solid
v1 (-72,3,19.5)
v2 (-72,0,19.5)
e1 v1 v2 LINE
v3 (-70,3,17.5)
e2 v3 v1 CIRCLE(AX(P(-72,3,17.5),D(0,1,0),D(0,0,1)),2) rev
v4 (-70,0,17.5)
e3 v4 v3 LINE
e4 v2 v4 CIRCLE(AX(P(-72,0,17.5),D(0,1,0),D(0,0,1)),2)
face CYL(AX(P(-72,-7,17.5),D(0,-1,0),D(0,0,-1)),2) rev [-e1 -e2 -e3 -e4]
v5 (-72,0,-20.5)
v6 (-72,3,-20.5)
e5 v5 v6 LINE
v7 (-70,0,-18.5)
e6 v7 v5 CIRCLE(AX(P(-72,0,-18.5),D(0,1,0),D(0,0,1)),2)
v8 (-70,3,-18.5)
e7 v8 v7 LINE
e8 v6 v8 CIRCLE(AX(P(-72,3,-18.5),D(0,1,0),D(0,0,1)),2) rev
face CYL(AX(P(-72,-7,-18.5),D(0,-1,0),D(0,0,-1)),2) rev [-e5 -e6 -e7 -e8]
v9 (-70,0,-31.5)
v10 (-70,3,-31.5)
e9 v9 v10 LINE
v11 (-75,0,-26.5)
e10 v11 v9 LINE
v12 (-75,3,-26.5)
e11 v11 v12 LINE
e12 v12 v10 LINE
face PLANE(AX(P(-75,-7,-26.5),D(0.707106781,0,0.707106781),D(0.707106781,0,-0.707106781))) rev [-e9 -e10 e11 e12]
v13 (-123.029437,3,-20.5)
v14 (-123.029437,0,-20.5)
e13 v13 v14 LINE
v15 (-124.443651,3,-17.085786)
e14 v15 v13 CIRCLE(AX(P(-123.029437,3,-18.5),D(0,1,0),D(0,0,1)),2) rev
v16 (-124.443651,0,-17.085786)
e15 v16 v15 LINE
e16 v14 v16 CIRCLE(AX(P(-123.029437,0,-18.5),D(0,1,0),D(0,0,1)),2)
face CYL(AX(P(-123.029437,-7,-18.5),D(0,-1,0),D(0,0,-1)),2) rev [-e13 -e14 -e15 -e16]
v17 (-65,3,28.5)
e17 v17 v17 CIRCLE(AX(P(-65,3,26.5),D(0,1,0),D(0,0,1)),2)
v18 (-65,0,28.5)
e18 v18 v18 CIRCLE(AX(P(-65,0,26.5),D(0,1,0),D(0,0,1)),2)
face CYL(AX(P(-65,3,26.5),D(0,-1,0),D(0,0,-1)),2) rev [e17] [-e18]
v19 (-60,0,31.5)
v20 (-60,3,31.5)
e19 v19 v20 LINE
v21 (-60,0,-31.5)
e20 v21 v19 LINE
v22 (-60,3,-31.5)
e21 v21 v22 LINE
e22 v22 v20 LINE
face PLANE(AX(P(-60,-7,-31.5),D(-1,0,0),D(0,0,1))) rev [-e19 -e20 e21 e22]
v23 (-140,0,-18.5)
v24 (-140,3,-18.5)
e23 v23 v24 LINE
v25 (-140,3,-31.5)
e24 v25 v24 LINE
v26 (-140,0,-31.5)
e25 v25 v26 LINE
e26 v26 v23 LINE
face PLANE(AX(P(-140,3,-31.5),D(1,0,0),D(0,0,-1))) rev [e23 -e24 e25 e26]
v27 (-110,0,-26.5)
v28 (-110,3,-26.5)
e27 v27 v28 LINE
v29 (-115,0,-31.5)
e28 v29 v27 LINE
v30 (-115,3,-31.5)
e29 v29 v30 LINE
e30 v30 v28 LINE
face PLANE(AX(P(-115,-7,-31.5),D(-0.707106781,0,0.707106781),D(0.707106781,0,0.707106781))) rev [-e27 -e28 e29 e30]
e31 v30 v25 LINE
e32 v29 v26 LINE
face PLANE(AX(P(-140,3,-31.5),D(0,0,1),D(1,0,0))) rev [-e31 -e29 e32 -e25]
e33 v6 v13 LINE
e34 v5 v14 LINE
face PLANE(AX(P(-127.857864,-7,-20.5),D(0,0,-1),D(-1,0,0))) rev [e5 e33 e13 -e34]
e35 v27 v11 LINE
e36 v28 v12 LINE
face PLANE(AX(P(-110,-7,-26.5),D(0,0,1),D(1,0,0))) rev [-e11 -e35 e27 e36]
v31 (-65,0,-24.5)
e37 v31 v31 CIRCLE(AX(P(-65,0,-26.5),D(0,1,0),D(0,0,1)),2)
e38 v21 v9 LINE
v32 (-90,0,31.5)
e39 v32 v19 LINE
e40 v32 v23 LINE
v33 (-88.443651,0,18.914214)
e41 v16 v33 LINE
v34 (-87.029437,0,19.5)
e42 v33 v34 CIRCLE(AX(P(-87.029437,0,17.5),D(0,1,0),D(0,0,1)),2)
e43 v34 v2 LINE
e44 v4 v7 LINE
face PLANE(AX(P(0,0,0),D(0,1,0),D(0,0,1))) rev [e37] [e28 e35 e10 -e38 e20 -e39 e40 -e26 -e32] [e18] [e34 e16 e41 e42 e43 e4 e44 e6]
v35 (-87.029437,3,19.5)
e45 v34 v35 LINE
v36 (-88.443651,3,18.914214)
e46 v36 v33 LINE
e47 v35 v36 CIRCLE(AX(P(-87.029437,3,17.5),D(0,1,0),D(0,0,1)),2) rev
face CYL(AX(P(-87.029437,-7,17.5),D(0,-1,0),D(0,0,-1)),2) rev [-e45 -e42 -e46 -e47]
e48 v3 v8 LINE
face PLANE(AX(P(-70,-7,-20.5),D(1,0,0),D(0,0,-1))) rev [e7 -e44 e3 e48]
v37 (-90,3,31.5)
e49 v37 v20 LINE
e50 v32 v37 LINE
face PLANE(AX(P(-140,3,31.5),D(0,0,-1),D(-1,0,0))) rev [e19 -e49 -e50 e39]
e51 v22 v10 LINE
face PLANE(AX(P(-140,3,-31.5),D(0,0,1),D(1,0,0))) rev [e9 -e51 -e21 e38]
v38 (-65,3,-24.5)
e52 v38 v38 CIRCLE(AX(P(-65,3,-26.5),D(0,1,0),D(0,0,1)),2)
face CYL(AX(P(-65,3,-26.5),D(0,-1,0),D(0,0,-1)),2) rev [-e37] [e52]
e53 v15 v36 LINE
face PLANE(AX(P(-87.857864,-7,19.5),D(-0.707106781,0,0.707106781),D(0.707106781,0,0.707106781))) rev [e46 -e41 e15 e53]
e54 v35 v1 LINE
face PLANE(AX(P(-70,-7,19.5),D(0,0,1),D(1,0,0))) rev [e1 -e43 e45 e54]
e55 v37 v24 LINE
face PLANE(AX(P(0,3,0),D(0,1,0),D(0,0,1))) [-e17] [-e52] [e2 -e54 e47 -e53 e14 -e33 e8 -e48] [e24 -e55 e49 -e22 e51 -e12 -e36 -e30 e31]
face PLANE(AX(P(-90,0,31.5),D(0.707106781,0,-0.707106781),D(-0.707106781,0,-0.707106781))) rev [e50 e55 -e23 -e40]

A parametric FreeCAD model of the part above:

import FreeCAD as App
import Part
import Sketcher
from FreeCAD import Vector
Q = App.Units.Quantity


def edges_at(feature, points):
    """Names of the edges that pass closest to the given points."""
    edges = feature.Shape.Edges
    near = lambda p: min(range(len(edges)), key=lambda i: edges[i].distToShape(Part.Vertex(*p))[0])
    return sorted({f"Edge{near(p) + 1}" for p in points})


def add_polygon(sketch, points):
    """Adds a closed chain of lines whose ends are joined by coincident constraints."""
    first, n = sketch.GeometryCount, len(points)
    for a, b in zip(points, points[1:] + points[:1]):
        sketch.addGeometry(Part.LineSegment(App.Vector(*a, 0), App.Vector(*b, 0)), False)
    for i in range(n):
        sketch.addConstraint(Sketcher.Constraint("Coincident", first + i, 2, first + (i + 1) % n, 1))

doc = App.newDocument("Part")
body = doc.addObject("PartDesign::Body", "Body")

# Sketch on XZ plane
sketch1 = doc.addObject("Sketcher::SketchObject", "Sketch")
body.addObject(sketch1)
sketch1.AttachmentSupport = (doc.XZ_Plane, [""])
sketch1.MapMode = "FlatFace"
add_polygon(sketch1, [(-140, -31.5), (-140, 31.5), (140, 31.5), (140, -31.5)])  # lines 0-3
sketch1.addGeometry(Part.Circle(Vector(-65, 26.5, 0), Vector(0, 0, 1), 2), False)  # 4
sketch1.addGeometry(Part.Circle(Vector(65, 26.5, 0), Vector(0, 0, 1), 2), False)  # 5
sketch1.addGeometry(Part.Circle(Vector(-65, -26.5, 0), Vector(0, 0, 1), 2), False)  # 6
sketch1.addGeometry(Part.Circle(Vector(65, -26.5, 0), Vector(0, 0, 1), 2), False)  # 7
sketch1.addConstraint([
    Sketcher.Constraint("Vertical", 0),
    Sketcher.Constraint("Horizontal", 1),
    Sketcher.Constraint("Vertical", 2),
    Sketcher.Constraint("Horizontal", 3),
    Sketcher.Constraint("Equal", 4, 5),
    Sketcher.Constraint("Equal", 5, 6),
    Sketcher.Constraint("Equal", 6, 7),
    Sketcher.Constraint("Symmetric", 5, 3, 6, 3, -1, 1),
    Sketcher.Constraint("Symmetric", 4, 3, 7, 3, -1, 1),
    Sketcher.Constraint("Symmetric", 0, 2, 2, 2, -1, 1),
    Sketcher.Constraint("Symmetric", 4, 3, 5, 3, -2),
    Sketcher.Constraint("Diameter", 4, 4.0),
    Sketcher.Constraint("DistanceX", 1, 1, 1, 2, 280.0),
    Sketcher.Constraint("DistanceY", 0, 1, 0, 2, 63.0),
    Sketcher.Constraint("DistanceX", 4, 3, -1, 1, 65.0),
    Sketcher.Constraint("DistanceY", 6, 3, 4, 3, 53.0),
])
pad1 = doc.addObject("PartDesign::Pad", "Pad")
body.addObject(pad1)
pad1.Profile = sketch1
pad1.Length = 3
pad1.Reversed = True

# Sketch on XZ plane
sketch2 = doc.addObject("Sketcher::SketchObject", "Sketch001")
body.addObject(sketch2)
sketch2.AttachmentSupport = (doc.XZ_Plane, [""])
sketch2.MapMode = "FlatFace"
sketch2.AttachmentOffset = App.Placement(Vector(0, 0, -3), App.Rotation())
add_polygon(sketch2, [(-140, -18), (-140, 32), (-90, 32)])  # lines 0-2
add_polygon(sketch2, [(140, -18), (90, 32), (140, 32)])  # lines 3-5
sketch2.addConstraint([
    Sketcher.Constraint("Vertical", 0),
    Sketcher.Constraint("Horizontal", 1),
    Sketcher.Constraint("Horizontal", 4),
    Sketcher.Constraint("Vertical", 5),
    Sketcher.Constraint("Symmetric", 1, 2, 3, 2, -2),
    Sketcher.Constraint("Symmetric", 2, 2, 5, 2, -2),
    Sketcher.Constraint("Perpendicular", 2, 3),
    Sketcher.Constraint("DistanceX", 1, 1, 1, 2, 50.0),
    Sketcher.Constraint("DistanceX", 0, 2, -1, 1, 140.0),
    Sketcher.Constraint("DistanceY", -1, 1, 0, 2, 31.5),
])
pocket1 = doc.addObject("PartDesign::Pocket", "Pocket")
body.addObject(pocket1)
pocket1.Profile = sketch2
pocket1.Length = 3
pocket1.Reversed = True

# Sketch on XZ plane
sketch3 = doc.addObject("Sketcher::SketchObject", "Sketch002")
body.addObject(sketch3)
sketch3.AttachmentSupport = (doc.XZ_Plane, [""])
sketch3.MapMode = "FlatFace"
sketch3.AttachmentOffset = App.Placement(Vector(0, 0, -3), App.Rotation())
add_polygon(sketch3, [(-60, -32), (-60, 32), (140, 32), (140, -32)])  # lines 0-3
sketch3.addConstraint([
    Sketcher.Constraint("Vertical", 0),
    Sketcher.Constraint("Horizontal", 1),
    Sketcher.Constraint("Vertical", 2),
    Sketcher.Constraint("Horizontal", 3),
    Sketcher.Constraint("DistanceX", 1, 1, 1, 2, 200.0),
    Sketcher.Constraint("DistanceY", 0, 1, 0, 2, 63.0),
    Sketcher.Constraint("DistanceX", 0, 2, -1, 1, 60.0),
    Sketcher.Constraint("DistanceY", -1, 1, 0, 2, 31.5),
])
pocket2 = doc.addObject("PartDesign::Pocket", "Pocket001")
body.addObject(pocket2)
pocket2.Profile = sketch3
pocket2.Length = 10
pocket2.Reversed = True

# Sketch on XZ plane
sketch4 = doc.addObject("Sketcher::SketchObject", "Sketch003")
body.addObject(sketch4)
sketch4.AttachmentSupport = (doc.XZ_Plane, [""])
sketch4.MapMode = "FlatFace"
sketch4.AttachmentOffset = App.Placement(Vector(0, 0, -3), App.Rotation())
add_polygon(sketch4, [(-115, -32), (-110, -26), (-75, -26), (-70, -32)])  # lines 0-3
sketch4.addConstraint([
    Sketcher.Constraint("Horizontal", 1),
    Sketcher.Constraint("Horizontal", 3),
    Sketcher.Constraint("Perpendicular", 0, 2),
    Sketcher.Constraint("Equal", 0, 2),
    Sketcher.Constraint("DistanceX", 1, 1, 1, 2, 35.0),
    Sketcher.Constraint("DistanceX", 3, 2, 3, 1, 45.0),
    Sketcher.Constraint("DistanceX", 0, 2, -1, 1, 110.0),
    Sketcher.Constraint("DistanceY", 0, 2, -1, 1, 26.5),
])
pocket3 = doc.addObject("PartDesign::Pocket", "Pocket002")
body.addObject(pocket3)
pocket3.Profile = sketch4
pocket3.Length = 10
pocket3.Reversed = True

# Sketch on XZ plane
sketch5 = doc.addObject("Sketcher::SketchObject", "Sketch004")
body.addObject(sketch5)
sketch5.AttachmentSupport = (doc.XZ_Plane, [""])
sketch5.MapMode = "FlatFace"
sketch5.AttachmentOffset = App.Placement(Vector(0, 0, -3), App.Rotation())
add_polygon(sketch5, [(-70, -20), (-128, -20), (-88, 20), (-70, 20)])  # lines 0-3
sketch5.addConstraint([
    Sketcher.Constraint("Horizontal", 0),
    Sketcher.Constraint("Horizontal", 2),
    Sketcher.Constraint("Vertical", 3),
    Sketcher.Constraint("DistanceY", 3, 2, 3, 1, 40.0),
    Sketcher.Constraint("Angle", 1, Q("45 deg")),
    Sketcher.Constraint("DistanceX", 2, 2, -1, 1, 70.0),
    Sketcher.Constraint("DistanceY", 0, 2, -1, 1, 20.5),
    Sketcher.Constraint("DistanceX", 0, 2, 0, 1, 57.857864),
])
pocket4 = doc.addObject("PartDesign::Pocket", "Pocket003")
body.addObject(pocket4)
pocket4.Profile = sketch5
pocket4.Length = 10
pocket4.Reversed = True
doc.recompute()

fillet = doc.addObject("PartDesign::Fillet", "Fillet")
body.addObject(fillet)
fillet.Base = (pocket4, edges_at(pocket4, [
    (-70, 1.5, -20.5),
    (-70, 1.5, 19.5),
    (-87.858, 1.5, 19.5),
    (-127.858, 1.5, -20.5),
]))
fillet.Radius = 2

doc.recompute()
